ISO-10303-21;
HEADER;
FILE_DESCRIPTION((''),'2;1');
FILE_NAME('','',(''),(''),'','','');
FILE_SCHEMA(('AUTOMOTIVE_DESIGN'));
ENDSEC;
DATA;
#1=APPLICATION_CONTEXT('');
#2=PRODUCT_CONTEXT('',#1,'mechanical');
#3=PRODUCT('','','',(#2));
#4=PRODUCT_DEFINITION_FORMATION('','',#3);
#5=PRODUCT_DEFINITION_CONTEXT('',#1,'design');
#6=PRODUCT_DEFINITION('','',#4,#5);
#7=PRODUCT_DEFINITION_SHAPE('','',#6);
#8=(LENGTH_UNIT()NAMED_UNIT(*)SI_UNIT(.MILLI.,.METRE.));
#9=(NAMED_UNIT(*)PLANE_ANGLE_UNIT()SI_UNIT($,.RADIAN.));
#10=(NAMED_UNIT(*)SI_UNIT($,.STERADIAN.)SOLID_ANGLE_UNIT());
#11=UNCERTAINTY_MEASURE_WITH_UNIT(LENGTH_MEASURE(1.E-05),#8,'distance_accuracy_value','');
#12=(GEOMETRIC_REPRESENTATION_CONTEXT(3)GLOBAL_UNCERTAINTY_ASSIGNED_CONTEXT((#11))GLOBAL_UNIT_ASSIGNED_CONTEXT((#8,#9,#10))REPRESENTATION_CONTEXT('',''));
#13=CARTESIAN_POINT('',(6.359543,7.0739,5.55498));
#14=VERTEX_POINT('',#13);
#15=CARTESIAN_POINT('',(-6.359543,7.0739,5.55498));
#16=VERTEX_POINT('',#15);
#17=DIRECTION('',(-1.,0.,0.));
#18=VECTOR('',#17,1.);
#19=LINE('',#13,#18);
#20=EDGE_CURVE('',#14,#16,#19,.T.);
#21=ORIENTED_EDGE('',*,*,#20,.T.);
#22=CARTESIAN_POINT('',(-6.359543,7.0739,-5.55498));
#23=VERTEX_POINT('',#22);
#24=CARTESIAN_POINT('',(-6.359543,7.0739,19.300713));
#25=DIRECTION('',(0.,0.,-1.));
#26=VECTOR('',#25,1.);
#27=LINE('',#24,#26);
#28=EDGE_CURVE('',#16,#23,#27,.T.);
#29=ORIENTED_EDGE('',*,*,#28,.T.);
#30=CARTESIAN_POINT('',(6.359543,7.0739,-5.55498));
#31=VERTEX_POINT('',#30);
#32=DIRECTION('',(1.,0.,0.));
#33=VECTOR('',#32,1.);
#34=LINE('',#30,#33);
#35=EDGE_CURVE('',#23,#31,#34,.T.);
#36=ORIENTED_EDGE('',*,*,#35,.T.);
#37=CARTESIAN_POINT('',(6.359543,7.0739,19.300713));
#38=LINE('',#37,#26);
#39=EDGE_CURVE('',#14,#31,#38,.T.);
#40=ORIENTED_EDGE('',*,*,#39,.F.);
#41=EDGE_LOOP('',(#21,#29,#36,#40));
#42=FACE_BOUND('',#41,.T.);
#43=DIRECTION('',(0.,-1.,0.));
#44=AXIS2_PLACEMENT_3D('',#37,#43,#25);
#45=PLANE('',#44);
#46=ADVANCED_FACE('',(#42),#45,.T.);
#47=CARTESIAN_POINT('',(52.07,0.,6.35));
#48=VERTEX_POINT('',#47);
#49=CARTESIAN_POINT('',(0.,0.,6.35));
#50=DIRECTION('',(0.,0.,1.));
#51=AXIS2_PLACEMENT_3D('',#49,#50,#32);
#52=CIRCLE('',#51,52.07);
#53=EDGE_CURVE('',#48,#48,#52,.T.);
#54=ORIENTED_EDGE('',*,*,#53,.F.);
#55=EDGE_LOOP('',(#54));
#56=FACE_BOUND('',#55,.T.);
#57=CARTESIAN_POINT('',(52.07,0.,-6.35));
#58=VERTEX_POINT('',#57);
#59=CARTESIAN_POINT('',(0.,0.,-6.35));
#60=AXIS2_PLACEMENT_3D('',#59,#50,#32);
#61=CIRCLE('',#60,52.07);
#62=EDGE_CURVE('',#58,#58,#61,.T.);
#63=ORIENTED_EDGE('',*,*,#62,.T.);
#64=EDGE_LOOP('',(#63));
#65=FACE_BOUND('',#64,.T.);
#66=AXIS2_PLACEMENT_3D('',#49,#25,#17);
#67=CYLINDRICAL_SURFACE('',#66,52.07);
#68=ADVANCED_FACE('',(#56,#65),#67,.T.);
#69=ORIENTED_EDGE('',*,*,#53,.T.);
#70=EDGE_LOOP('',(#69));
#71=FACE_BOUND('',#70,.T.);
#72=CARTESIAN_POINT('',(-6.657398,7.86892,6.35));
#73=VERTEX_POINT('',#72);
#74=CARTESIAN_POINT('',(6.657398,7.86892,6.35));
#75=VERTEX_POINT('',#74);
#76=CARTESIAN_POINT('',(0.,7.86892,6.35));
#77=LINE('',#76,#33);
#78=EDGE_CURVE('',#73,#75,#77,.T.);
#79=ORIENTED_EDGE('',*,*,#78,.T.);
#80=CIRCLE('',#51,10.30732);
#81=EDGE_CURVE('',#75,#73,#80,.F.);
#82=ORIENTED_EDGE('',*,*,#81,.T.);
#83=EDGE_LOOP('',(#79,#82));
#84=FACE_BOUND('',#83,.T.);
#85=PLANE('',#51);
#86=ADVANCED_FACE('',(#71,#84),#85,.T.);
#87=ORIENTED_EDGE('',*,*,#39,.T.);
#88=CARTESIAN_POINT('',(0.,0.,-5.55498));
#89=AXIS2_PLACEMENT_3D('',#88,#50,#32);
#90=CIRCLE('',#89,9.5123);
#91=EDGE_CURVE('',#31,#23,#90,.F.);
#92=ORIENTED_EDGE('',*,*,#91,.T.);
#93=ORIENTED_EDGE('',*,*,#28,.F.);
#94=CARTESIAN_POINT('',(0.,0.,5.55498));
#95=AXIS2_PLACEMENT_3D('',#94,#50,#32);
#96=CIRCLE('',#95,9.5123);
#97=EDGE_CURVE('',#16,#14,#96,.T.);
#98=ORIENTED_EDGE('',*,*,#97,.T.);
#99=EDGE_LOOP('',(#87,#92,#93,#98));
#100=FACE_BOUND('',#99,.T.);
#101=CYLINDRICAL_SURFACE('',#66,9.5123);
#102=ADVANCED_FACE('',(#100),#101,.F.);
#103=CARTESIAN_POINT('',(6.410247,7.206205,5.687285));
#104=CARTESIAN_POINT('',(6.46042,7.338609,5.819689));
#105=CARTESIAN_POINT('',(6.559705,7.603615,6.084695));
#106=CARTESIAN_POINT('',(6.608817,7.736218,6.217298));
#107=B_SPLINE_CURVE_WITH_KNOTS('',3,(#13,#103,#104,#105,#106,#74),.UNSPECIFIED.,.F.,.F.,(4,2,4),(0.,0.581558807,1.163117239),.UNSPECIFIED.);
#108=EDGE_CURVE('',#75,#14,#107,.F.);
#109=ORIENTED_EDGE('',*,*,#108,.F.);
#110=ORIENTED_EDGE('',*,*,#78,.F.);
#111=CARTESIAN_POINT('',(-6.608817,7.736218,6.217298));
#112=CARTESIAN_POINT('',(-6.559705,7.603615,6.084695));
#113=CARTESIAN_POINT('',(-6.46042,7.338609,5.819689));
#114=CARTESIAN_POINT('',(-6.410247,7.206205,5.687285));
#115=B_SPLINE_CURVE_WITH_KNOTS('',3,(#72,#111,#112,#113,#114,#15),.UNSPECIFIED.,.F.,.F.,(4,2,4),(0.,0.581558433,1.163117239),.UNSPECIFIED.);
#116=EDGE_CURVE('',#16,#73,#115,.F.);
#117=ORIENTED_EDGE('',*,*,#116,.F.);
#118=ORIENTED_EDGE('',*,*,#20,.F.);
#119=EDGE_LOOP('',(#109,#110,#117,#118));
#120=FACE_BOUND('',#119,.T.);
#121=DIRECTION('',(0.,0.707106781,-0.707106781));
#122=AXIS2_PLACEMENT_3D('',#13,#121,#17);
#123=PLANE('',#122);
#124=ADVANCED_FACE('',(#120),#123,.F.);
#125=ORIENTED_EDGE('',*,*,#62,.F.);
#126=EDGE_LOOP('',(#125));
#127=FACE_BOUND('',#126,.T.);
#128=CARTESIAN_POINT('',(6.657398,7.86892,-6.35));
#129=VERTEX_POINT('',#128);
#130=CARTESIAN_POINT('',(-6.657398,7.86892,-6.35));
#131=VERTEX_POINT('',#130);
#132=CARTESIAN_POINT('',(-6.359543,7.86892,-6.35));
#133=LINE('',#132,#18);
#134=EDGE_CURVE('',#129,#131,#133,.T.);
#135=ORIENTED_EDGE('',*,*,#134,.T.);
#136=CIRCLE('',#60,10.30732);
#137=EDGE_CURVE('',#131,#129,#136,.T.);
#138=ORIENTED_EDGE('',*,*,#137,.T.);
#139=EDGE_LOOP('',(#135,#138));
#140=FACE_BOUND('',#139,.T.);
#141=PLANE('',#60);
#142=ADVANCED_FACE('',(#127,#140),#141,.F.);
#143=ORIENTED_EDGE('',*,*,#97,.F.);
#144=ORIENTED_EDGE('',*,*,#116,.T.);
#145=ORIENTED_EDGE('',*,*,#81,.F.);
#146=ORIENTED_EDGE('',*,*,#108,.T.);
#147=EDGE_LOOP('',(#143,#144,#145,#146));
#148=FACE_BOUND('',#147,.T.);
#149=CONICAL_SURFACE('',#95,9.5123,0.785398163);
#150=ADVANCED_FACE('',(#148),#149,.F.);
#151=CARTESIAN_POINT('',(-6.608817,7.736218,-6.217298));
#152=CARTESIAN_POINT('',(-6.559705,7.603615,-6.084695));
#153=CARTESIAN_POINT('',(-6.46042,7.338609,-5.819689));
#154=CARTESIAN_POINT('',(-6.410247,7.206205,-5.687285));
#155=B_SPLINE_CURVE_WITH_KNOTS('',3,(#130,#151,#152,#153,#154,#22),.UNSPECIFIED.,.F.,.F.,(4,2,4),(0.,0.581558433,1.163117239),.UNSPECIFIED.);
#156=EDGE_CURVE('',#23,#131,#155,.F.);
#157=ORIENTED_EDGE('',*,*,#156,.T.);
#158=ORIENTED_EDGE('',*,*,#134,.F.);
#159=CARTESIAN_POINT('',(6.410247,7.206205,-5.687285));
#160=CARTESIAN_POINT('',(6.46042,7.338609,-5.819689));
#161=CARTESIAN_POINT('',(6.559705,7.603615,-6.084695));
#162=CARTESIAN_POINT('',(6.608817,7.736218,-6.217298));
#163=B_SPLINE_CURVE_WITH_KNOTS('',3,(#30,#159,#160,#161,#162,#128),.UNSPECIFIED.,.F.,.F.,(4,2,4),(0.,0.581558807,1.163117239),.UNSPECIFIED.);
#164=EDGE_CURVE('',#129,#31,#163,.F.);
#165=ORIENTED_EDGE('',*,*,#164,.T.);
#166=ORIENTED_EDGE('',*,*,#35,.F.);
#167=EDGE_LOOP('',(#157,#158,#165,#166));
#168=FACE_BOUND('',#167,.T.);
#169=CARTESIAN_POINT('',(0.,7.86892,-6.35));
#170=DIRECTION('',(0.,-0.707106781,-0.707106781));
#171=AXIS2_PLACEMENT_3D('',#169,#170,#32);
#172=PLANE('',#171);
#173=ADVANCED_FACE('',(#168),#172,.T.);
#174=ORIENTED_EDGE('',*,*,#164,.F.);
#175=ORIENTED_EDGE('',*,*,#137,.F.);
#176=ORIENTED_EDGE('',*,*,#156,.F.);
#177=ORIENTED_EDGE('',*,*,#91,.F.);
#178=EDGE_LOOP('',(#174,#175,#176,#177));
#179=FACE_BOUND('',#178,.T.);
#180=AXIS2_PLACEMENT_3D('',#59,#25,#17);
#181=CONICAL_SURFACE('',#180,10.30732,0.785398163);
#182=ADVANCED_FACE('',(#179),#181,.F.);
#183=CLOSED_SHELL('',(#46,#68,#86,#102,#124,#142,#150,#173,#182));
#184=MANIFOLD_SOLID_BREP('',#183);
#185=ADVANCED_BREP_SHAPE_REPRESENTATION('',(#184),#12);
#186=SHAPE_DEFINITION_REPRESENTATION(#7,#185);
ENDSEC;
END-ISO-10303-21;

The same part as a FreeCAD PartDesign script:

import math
import FreeCAD as App
import Part
import Sketcher
from FreeCAD import Vector
Q = App.Units.Quantity


def edges_at(feature, points):
    """Names of the edges that pass closest to the given points."""
    edges = feature.Shape.Edges
    near = lambda p: min(range(len(edges)), key=lambda i: edges[i].distToShape(Part.Vertex(*p))[0])
    return sorted({f"Edge{near(p) + 1}" for p in points})

doc = App.newDocument("Part")
body = doc.addObject("PartDesign::Body", "Body")

# Sketch on XY plane
sketch1 = doc.addObject("Sketcher::SketchObject", "Sketch")
body.addObject(sketch1)
sketch1.AttachmentSupport = (doc.XY_Plane, [""])
sketch1.MapMode = "FlatFace"
sketch1.addGeometry([
    Part.Circle(Vector(0, 0, 0), Vector(0, 0, 1), 52),
    Part.Circle(Vector(0, 0, 0), Vector(0, 0, 1), 10),
], False)
sketch1.addConstraint([
    Sketcher.Constraint("Coincident", 0, 3, -1, 1),
    Sketcher.Constraint("Coincident", 1, 3, -1, 1),
    Sketcher.Constraint("Diameter", 0, Q("4.1 in")),
    Sketcher.Constraint("Diameter", 1, Q("0.749 in")),
])
pad1 = doc.addObject("PartDesign::Pad", "Pad")
body.addObject(pad1)
pad1.Profile = sketch1
pad1.Length = Q("0.5 in")
pad1.Midplane = True

# Sketch on XY plane
sketch2 = doc.addObject("Sketcher::SketchObject", "Sketch001")
body.addObject(sketch2)
sketch2.AttachmentSupport = (doc.XY_Plane, [""])
sketch2.MapMode = "FlatFace"
sketch2.AttachmentOffset = App.Placement(Vector(0, 0, -0.25 * 25.4), App.Rotation())
sketch2.addGeometry([
    Part.LineSegment(Vector(6, 7, 0), Vector(-6, 7, 0)),
    Part.ArcOfCircle(Part.Circle(Vector(0, 0, 0), Vector(0, 0, 1), 10), math.radians(48), math.radians(132)),
], False)
sketch2.addConstraint([
    Sketcher.Constraint("Coincident", 0, 1, 1, 1),
    Sketcher.Constraint("Coincident", 1, 2, 0, 2),
    Sketcher.Constraint("Horizontal", 0),
    Sketcher.Constraint("Coincident", 1, 3, -1, 1),
    Sketcher.Constraint("Radius", 1, Q("0.3745 in")),
    Sketcher.Constraint("DistanceY", -1, 1, 0, 1, Q("0.2785 in")),
])
pad2 = doc.addObject("PartDesign::Pad", "Pad001")
body.addObject(pad2)
pad2.Profile = sketch2
pad2.Length = Q("0.5 in")
doc.recompute()

chamfer = doc.addObject("PartDesign::Chamfer", "Chamfer")
body.addObject(chamfer)
chamfer.Base = (pad2, edges_at(pad2, [
    (0, -9.512, -6.35),
    (0, 7.074, -6.35),
    (0, 7.074, 6.35),
    (0, -9.512, 6.35),
]))
chamfer.Size = Q("0.0313 in")

doc.recompute()
